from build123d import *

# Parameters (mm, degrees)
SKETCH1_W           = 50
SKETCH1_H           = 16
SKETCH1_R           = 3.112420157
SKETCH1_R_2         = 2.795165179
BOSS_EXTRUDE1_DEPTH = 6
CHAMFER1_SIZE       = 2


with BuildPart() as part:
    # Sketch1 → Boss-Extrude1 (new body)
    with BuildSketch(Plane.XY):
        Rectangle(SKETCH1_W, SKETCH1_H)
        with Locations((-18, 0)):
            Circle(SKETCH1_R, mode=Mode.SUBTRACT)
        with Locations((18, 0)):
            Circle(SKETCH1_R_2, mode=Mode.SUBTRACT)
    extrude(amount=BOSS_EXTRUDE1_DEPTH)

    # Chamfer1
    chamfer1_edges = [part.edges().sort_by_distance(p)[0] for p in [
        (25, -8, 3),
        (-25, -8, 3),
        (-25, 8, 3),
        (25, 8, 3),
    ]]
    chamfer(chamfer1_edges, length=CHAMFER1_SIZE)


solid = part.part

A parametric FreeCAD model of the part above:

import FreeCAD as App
import Part
import Sketcher
from FreeCAD import Vector


def edges_at(feature, points):
    """Names of the edges that pass closest to the given points."""
    edges = feature.Shape.Edges
    near = lambda p: min(range(len(edges)), key=lambda i: edges[i].distToShape(Part.Vertex(*p))[0])
    return sorted({f"Edge{near(p) + 1}" for p in points})


def add_polygon(sketch, points):
    """Adds a closed chain of lines whose ends are joined by coincident constraints."""
    first, n = sketch.GeometryCount, len(points)
    for a, b in zip(points, points[1:] + points[:1]):
        sketch.addGeometry(Part.LineSegment(App.Vector(*a, 0), App.Vector(*b, 0)), False)
    for i in range(n):
        sketch.addConstraint(Sketcher.Constraint("Coincident", first + i, 2, first + (i + 1) % n, 1))

doc = App.newDocument("Part")
body = doc.addObject("PartDesign::Body", "Body")

# Sketch on XY plane
sketch1 = body.newObject("Sketcher::SketchObject", "Sketch")
sketch1.AttachmentSupport = (doc.getObject("XY_Plane"), [""])
sketch1.MapMode = "FlatFace"
add_polygon(sketch1, [(-25, 8), (-25, -8), (25, -8), (25, 8)])  # lines 0-3
sketch1.addGeometry(Part.Circle(Vector(-18, 0, 0), Vector(0, 0, 1), 3.11242), False)  # 4
sketch1.addGeometry(Part.Circle(Vector(18, 0, 0), Vector(0, 0, 1), 2.795165), False)  # 5
sketch1.addConstraint([
    Sketcher.Constraint("Vertical", 0),
    Sketcher.Constraint("Horizontal", 1),
    Sketcher.Constraint("Vertical", 2),
    Sketcher.Constraint("Horizontal", 3),
    Sketcher.Constraint("Symmetric", 4, 3, 5, 3, -1, 1),
    Sketcher.Constraint("Symmetric", 0, 2, 2, 2, -1, 1),
    Sketcher.Constraint("PointOnObject", 4, 3, -1),
    Sketcher.Constraint("DistanceX", 1, 1, 1, 2, 50.0),
    Sketcher.Constraint("DistanceY", 0, 2, 0, 1, 16.0),
    Sketcher.Constraint("DistanceX", 4, 3, -1, 1, 18.0),
    Sketcher.Constraint("Diameter", 4, 6.22484),
    Sketcher.Constraint("Diameter", 5, 5.59033),
])
pad1 = body.newObject("PartDesign::Pad", "Pad")
pad1.Profile = sketch1
pad1.Length = 6
doc.recompute()

chamfer = body.newObject("PartDesign::Chamfer", "Chamfer")
chamfer.Base = (pad1, edges_at(pad1, [
    (25, -8, 3),
    (-25, -8, 3),
    (-25, 8, 3),
    (25, 8, 3),
]))
chamfer.Size = 2

doc.recompute()
